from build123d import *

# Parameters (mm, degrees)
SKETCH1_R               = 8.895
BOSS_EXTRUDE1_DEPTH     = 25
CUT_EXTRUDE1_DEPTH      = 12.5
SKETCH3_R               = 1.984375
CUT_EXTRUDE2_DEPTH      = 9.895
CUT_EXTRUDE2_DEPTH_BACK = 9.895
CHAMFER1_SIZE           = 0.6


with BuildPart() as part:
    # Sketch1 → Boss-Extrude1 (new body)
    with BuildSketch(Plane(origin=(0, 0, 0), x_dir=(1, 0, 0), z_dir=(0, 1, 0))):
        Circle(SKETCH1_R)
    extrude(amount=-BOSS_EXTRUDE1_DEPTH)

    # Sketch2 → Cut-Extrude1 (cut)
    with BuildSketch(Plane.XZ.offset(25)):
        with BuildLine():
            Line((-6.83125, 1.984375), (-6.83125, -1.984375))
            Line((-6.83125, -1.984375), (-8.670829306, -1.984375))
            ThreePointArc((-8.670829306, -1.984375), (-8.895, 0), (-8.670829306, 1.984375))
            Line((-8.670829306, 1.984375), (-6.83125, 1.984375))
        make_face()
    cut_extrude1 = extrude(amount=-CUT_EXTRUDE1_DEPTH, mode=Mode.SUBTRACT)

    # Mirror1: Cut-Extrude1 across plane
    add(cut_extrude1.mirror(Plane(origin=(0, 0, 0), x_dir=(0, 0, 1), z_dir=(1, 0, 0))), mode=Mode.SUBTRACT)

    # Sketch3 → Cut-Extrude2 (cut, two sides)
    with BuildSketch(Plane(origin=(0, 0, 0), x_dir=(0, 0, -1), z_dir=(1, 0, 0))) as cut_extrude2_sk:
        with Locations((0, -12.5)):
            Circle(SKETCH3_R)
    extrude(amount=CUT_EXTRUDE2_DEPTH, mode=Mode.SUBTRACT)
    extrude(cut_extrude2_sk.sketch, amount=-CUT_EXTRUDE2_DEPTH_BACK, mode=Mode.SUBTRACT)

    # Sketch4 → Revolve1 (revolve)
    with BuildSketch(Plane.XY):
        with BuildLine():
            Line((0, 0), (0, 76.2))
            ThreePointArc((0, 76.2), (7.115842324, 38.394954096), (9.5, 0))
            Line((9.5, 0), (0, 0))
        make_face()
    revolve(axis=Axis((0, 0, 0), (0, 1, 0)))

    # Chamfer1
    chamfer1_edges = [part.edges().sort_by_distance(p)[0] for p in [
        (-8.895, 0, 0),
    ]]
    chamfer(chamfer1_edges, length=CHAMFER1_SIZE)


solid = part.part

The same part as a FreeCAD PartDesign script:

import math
import FreeCAD as App
import Part
import Sketcher
Q = App.Units.Quantity


def edges_at(feature, points):
    """Names of the edges that pass closest to the given points."""
    edges = feature.Shape.Edges
    near = lambda p: min(range(len(edges)), key=lambda i: edges[i].distToShape(Part.Vertex(*p))[0])
    return sorted({f"Edge{near(p) + 1}" for p in points})

doc = App.newDocument("Part")
body = doc.addObject("PartDesign::Body", "Body")

# Sketch on XZ plane
sketch1 = doc.addObject("Sketcher::SketchObject", "Sketch")
body.addObject(sketch1)
sketch1.AttachmentSupport = (doc.XZ_Plane, [""])
sketch1.MapMode = "FlatFace"
sketch1.addGeometry(Part.Circle(App.Vector(0, 0, 0), App.Vector(0, 0, 1), 8.895), False)
sketch1.addConstraint(Sketcher.Constraint("Coincident", 0, 3, -1, 1))
sketch1.addConstraint(Sketcher.Constraint("Diameter", 0, Q("17.79 mm")))
pad1 = doc.addObject("PartDesign::Pad", "Pad")
body.addObject(pad1)
pad1.Profile = sketch1
pad1.Length = 25

# Sketch on XZ plane
sketch2 = doc.addObject("Sketcher::SketchObject", "Sketch001")
body.addObject(sketch2)
sketch2.AttachmentSupport = (doc.XZ_Plane, [""])
sketch2.MapMode = "FlatFace"
sketch2.AttachmentOffset = App.Placement(App.Vector(0, 0, 25), App.Rotation())
sketch2.addGeometry(Part.LineSegment(App.Vector(-6.83125, -1.984375, 0), App.Vector(-6.83125, 1.984375, 0)), False)
sketch2.addGeometry(Part.LineSegment(App.Vector(-6.83125, 1.984375, 0), App.Vector(-8.670829, 1.984375, 0)), False)
sketch2.addGeometry(Part.ArcOfCircle(Part.Circle(App.Vector(0, 0, 0), App.Vector(0, 0, 1), 8.895), math.radians(167.109481), math.radians(192.890519)), False)
sketch2.addGeometry(Part.LineSegment(App.Vector(-8.670829, -1.984375, 0), App.Vector(-6.83125, -1.984375, 0)), False)
sketch2.addConstraint(Sketcher.Constraint("Coincident", 0, 2, 1, 1))
sketch2.addConstraint(Sketcher.Constraint("Coincident", 1, 2, 2, 1))
sketch2.addConstraint(Sketcher.Constraint("Coincident", 2, 2, 3, 1))
sketch2.addConstraint(Sketcher.Constraint("Coincident", 3, 2, 0, 1))
sketch2.addConstraint(Sketcher.Constraint("Vertical", 0))
sketch2.addConstraint(Sketcher.Constraint("Horizontal", 1))
sketch2.addConstraint(Sketcher.Constraint("Horizontal", 3))
sketch2.addConstraint(Sketcher.Constraint("Coincident", 2, 3, -1, 1))
sketch2.addConstraint(Sketcher.Constraint("Vertical", 1, 2, 2, 2))
sketch2.addConstraint(Sketcher.Constraint("Radius", 2, Q("8.895 mm")))
sketch2.addConstraint(Sketcher.Constraint("DistanceX", 1, 2, 1, 1, Q("1.839579 mm")))
sketch2.addConstraint(Sketcher.Constraint("DistanceY", 0, 1, 0, 2, Q("3.96875 mm")))
pocket1 = doc.addObject("PartDesign::Pocket", "Pocket")
body.addObject(pocket1)
pocket1.Profile = sketch2
pocket1.Length = 12.5
doc.recompute()

mirrored = doc.addObject("PartDesign::Mirrored", "Mirrored")
body.addObject(mirrored)
mirrored.Originals = [pocket1]
mirrored.MirrorPlane = (doc.YZ_Plane, [""])
body.Tip = mirrored

# Sketch on YZ plane
sketch3 = doc.addObject("Sketcher::SketchObject", "Sketch002")
body.addObject(sketch3)
sketch3.AttachmentSupport = (doc.YZ_Plane, [""])
sketch3.MapMode = "FlatFace"
sketch3.addGeometry(Part.Circle(App.Vector(-12.5, 0, 0), App.Vector(0, 0, 1), 1.984375), False)
sketch3.addConstraint(Sketcher.Constraint("PointOnObject", 0, 3, -1))
sketch3.addConstraint(Sketcher.Constraint("DistanceX", 0, 3, -1, 1, Q("12.5 mm")))
sketch3.addConstraint(Sketcher.Constraint("Diameter", 0, Q("3.96875 mm")))
pocket2 = doc.addObject("PartDesign::Pocket", "Pocket001")
body.addObject(pocket2)
pocket2.Profile = sketch3
pocket2.Type = "ThroughAll"
pocket2.Midplane = True

# Sketch on XY plane
sketch4 = doc.addObject("Sketcher::SketchObject", "Sketch003")
body.addObject(sketch4)
sketch4.AttachmentSupport = (doc.XY_Plane, [""])
sketch4.MapMode = "FlatFace"
sketch4.addGeometry(Part.LineSegment(App.Vector(0, 76.2, 0), App.Vector(0, 0, 0)), False)
sketch4.addGeometry(Part.LineSegment(App.Vector(0, 0, 0), App.Vector(9.5, 0, 0)), False)
sketch4.addGeometry(Part.ArcOfCircle(Part.Circle(App.Vector(-300.852105, 0, 0), App.Vector(0, 0, 1), 310.352105), math.radians(0), math.radians(14.213014)), False)
sketch4.addConstraint(Sketcher.Constraint("Coincident", 0, 2, 1, 1))
sketch4.addConstraint(Sketcher.Constraint("Coincident", 1, 2, 2, 1))
sketch4.addConstraint(Sketcher.Constraint("Coincident", 2, 2, 0, 1))
sketch4.addConstraint(Sketcher.Constraint("Vertical", 0))
sketch4.addConstraint(Sketcher.Constraint("Horizontal", 1))
sketch4.addConstraint(Sketcher.Constraint("Coincident", 0, 2, -1, 1))
sketch4.addConstraint(Sketcher.Constraint("PointOnObject", 2, 3, -1))
sketch4.addConstraint(Sketcher.Constraint("DistanceX", 1, 1, 1, 2, Q("9.5 mm")))
sketch4.addConstraint(Sketcher.Constraint("DistanceY", 0, 2, 0, 1, Q("76.2 mm")))
revolution = doc.addObject("PartDesign::Revolution", "Revolution")
body.addObject(revolution)
revolution.Profile = sketch4
revolution.ReferenceAxis = (sketch4, ["V_Axis"])
revolution.Angle = 360
doc.recompute()

chamfer = doc.addObject("PartDesign::Chamfer", "Chamfer")
body.addObject(chamfer)
chamfer.Base = (revolution, edges_at(revolution, [(-8.895, 0, 0)]))
chamfer.Size = 0.6

doc.recompute()
